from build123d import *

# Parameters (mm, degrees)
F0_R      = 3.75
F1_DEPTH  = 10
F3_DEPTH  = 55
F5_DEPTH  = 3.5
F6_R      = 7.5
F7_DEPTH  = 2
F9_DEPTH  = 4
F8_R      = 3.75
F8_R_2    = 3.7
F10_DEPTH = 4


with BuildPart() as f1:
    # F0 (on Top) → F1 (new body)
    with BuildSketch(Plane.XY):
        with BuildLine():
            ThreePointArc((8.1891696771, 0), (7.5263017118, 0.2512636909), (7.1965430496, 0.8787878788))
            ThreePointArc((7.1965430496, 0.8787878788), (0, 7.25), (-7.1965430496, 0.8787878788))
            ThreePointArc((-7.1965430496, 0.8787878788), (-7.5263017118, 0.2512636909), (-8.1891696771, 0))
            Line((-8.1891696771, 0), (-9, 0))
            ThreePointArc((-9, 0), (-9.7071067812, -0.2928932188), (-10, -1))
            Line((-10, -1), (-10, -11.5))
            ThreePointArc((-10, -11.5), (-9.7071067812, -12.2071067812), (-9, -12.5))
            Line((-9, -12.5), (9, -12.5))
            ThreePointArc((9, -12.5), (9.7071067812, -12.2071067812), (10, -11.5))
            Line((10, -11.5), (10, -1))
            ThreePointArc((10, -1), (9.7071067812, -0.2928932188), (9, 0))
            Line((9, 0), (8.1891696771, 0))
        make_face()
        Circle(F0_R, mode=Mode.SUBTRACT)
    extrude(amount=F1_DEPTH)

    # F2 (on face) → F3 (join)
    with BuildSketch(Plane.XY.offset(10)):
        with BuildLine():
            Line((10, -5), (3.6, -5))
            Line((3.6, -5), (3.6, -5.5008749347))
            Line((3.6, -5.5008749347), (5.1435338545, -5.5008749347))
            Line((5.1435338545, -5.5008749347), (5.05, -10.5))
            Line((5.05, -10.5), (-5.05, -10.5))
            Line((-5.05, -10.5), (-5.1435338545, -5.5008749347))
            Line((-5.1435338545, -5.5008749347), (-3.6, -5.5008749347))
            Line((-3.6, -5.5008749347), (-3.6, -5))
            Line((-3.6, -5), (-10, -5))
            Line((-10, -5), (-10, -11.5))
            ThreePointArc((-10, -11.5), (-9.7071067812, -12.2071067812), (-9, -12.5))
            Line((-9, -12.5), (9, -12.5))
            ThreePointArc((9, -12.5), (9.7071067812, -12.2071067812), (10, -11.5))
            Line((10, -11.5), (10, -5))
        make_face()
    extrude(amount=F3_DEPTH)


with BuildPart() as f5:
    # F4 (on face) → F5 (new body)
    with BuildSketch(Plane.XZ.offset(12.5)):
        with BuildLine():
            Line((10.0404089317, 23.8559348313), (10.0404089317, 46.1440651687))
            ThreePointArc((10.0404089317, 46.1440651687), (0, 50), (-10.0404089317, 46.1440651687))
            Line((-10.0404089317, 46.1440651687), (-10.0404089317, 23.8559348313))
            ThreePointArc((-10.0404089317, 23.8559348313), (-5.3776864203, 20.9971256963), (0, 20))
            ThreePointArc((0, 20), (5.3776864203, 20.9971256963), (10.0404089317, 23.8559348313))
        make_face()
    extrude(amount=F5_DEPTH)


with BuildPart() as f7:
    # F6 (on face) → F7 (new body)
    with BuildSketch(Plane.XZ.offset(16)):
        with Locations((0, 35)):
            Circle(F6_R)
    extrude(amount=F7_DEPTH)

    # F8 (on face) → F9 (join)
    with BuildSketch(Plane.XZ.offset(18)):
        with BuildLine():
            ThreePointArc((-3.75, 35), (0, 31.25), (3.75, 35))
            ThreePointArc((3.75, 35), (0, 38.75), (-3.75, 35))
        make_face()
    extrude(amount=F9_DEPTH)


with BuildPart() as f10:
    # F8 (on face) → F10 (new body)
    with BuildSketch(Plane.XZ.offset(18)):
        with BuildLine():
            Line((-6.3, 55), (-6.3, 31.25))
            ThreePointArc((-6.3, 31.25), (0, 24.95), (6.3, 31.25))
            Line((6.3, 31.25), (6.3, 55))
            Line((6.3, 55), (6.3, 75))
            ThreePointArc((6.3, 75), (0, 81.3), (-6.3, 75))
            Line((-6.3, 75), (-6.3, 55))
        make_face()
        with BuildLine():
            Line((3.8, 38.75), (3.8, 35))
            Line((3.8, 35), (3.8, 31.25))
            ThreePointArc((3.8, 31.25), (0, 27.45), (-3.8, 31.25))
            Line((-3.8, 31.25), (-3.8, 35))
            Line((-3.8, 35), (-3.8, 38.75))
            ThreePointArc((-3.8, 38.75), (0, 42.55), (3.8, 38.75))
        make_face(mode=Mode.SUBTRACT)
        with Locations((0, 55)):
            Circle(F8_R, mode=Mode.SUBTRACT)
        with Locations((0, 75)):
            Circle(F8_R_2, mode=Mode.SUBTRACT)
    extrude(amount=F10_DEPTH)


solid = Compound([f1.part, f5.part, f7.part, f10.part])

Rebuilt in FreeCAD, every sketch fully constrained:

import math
import FreeCAD as App
import Part
import Sketcher
from FreeCAD import Vector
Q = App.Units.Quantity

doc = App.newDocument("Part")
body = doc.addObject("PartDesign::Body", "Body")

# Sketch on XY plane
sketch1 = body.newObject("Sketcher::SketchObject", "Sketch")
sketch1.AttachmentSupport = (doc.getObject("XY_Plane"), [""])
sketch1.MapMode = "FlatFace"
sketch1.addGeometry([
    Part.ArcOfCircle(Part.Circle(Vector(8.2, 1, 0), Vector(0, 0, 1), 1), math.radians(-173), math.radians(-90)),  # 0
    Part.ArcOfCircle(Part.Circle(Vector(0, 0, 0), Vector(0, 0, 1), 7.2), math.radians(7), math.radians(173)),  # 1
    Part.ArcOfCircle(Part.Circle(Vector(-8.2, 1, 0), Vector(0, 0, 1), 1), math.radians(-90), math.radians(-7)),  # 2
    Part.LineSegment(Vector(-8.2, 0, 0), Vector(-9, 0, 0)),  # 3
    Part.ArcOfCircle(Part.Circle(Vector(-9, -1, 0), Vector(0, 0, 1), 1), math.radians(90), math.radians(180)),  # 4
    Part.LineSegment(Vector(-10, -1, 0), Vector(-10, -11.5, 0)),  # 5
    Part.ArcOfCircle(Part.Circle(Vector(-9, -11.5, 0), Vector(0, 0, 1), 1), math.radians(180), math.radians(270)),  # 6
    Part.LineSegment(Vector(-9, -12.5, 0), Vector(9, -12.5, 0)),  # 7
    Part.ArcOfCircle(Part.Circle(Vector(9, -11.5, 0), Vector(0, 0, 1), 1), math.radians(-90), math.radians(0)),  # 8
    Part.LineSegment(Vector(10, -11.5, 0), Vector(10, -1, 0)),  # 9
    Part.ArcOfCircle(Part.Circle(Vector(9, -1, 0), Vector(0, 0, 1), 1), math.radians(0), math.radians(90)),  # 10
    Part.LineSegment(Vector(9, 0, 0), Vector(8.2, 0, 0)),  # 11
    Part.Circle(Vector(0, 0, 0), Vector(0, 0, 1), 3.8),  # 12
], False)
sketch1.addConstraint([
    Sketcher.Constraint("Tangent", 0, 1, 1, 1),
    Sketcher.Constraint("Tangent", 1, 2, 2, 2),
    Sketcher.Constraint("Tangent", 2, 1, 3, 1),
    Sketcher.Constraint("Tangent", 3, 2, 4, 1),
    Sketcher.Constraint("Tangent", 4, 2, 5, 1),
    Sketcher.Constraint("Tangent", 5, 2, 6, 1),
    Sketcher.Constraint("Tangent", 6, 2, 7, 1),
    Sketcher.Constraint("Tangent", 7, 2, 8, 1),
    Sketcher.Constraint("Tangent", 8, 2, 9, 1),
    Sketcher.Constraint("Tangent", 9, 2, 10, 1),
    Sketcher.Constraint("Tangent", 10, 2, 11, 1),
    Sketcher.Constraint("Tangent", 11, 2, 0, 2),
    Sketcher.Constraint("Horizontal", 3),
    Sketcher.Constraint("Vertical", 5),
    Sketcher.Constraint("Horizontal", 7),
    Sketcher.Constraint("Vertical", 9),
    Sketcher.Constraint("Horizontal", 11),
    Sketcher.Constraint("Coincident", 1, 3, -1, 1),
    Sketcher.Constraint("Coincident", 12, 3, -1, 1),
    Sketcher.Constraint("Equal", 0, 2),
    Sketcher.Constraint("Equal", 2, 4),
    Sketcher.Constraint("Equal", 4, 6),
    Sketcher.Constraint("Equal", 6, 8),
    Sketcher.Constraint("Equal", 8, 10),
    Sketcher.Constraint("Symmetric", 3, 2, 10, 2, -1, 1),
    Sketcher.Constraint("PointOnObject", 2, 1, -1),
    Sketcher.Constraint("Radius", 0, Q("1 mm")),
    Sketcher.Constraint("Diameter", 12, Q("7.5 mm")),
    Sketcher.Constraint("DistanceX", 7, 1, 7, 2, Q("18 mm")),
    Sketcher.Constraint("Radius", 1, Q("7.25 mm")),
    Sketcher.Constraint("DistanceY", 5, 2, 5, 1, Q("10.5 mm")),
])
pad1 = body.newObject("PartDesign::Pad", "Pad")
pad1.Profile = sketch1
pad1.Length = 10

# Sketch on XY plane
sketch2 = body.newObject("Sketcher::SketchObject", "Sketch001")
sketch2.AttachmentSupport = (doc.getObject("XY_Plane"), [""])
sketch2.MapMode = "FlatFace"
sketch2.AttachmentOffset = App.Placement(Vector(0, 0, 10), App.Rotation())
sketch2.addGeometry([
    Part.LineSegment(Vector(10, -5, 0), Vector(3.6, -5, 0)),  # 0
    Part.LineSegment(Vector(3.6, -5, 0), Vector(3.6, -5.5, 0)),  # 1
    Part.LineSegment(Vector(3.6, -5.5, 0), Vector(5.1, -5.5, 0)),  # 2
    Part.LineSegment(Vector(5.1, -5.5, 0), Vector(5, -10.5, 0)),  # 3
    Part.LineSegment(Vector(5, -10.5, 0), Vector(-5, -10.5, 0)),  # 4
    Part.LineSegment(Vector(-5, -10.5, 0), Vector(-5.1, -5.5, 0)),  # 5
    Part.LineSegment(Vector(-5.1, -5.5, 0), Vector(-3.6, -5.5, 0)),  # 6
    Part.LineSegment(Vector(-3.6, -5.5, 0), Vector(-3.6, -5, 0)),  # 7
    Part.LineSegment(Vector(-3.6, -5, 0), Vector(-10, -5, 0)),  # 8
    Part.LineSegment(Vector(-10, -5, 0), Vector(-10, -11.5, 0)),  # 9
    Part.ArcOfCircle(Part.Circle(Vector(-9, -11.5, 0), Vector(0, 0, 1), 1), math.radians(180), math.radians(270)),  # 10
    Part.LineSegment(Vector(-9, -12.5, 0), Vector(9, -12.5, 0)),  # 11
    Part.ArcOfCircle(Part.Circle(Vector(9, -11.5, 0), Vector(0, 0, 1), 1), math.radians(-90), math.radians(0)),  # 12
    Part.LineSegment(Vector(10, -11.5, 0), Vector(10, -5, 0)),  # 13
], False)
sketch2.addConstraint([
    Sketcher.Constraint("Coincident", 0, 2, 1, 1),
    Sketcher.Constraint("Coincident", 1, 2, 2, 1),
    Sketcher.Constraint("Coincident", 2, 2, 3, 1),
    Sketcher.Constraint("Coincident", 3, 2, 4, 1),
    Sketcher.Constraint("Coincident", 4, 2, 5, 1),
    Sketcher.Constraint("Coincident", 5, 2, 6, 1),
    Sketcher.Constraint("Coincident", 6, 2, 7, 1),
    Sketcher.Constraint("Coincident", 7, 2, 8, 1),
    Sketcher.Constraint("Coincident", 8, 2, 9, 1),
    Sketcher.Constraint("Tangent", 9, 2, 10, 1),
    Sketcher.Constraint("Tangent", 10, 2, 11, 1),
    Sketcher.Constraint("Tangent", 11, 2, 12, 1),
    Sketcher.Constraint("Tangent", 12, 2, 13, 1),
    Sketcher.Constraint("Coincident", 13, 2, 0, 1),
    Sketcher.Constraint("Horizontal", 0),
    Sketcher.Constraint("Vertical", 1),
    Sketcher.Constraint("Horizontal", 2),
    Sketcher.Constraint("Horizontal", 4),
    Sketcher.Constraint("Horizontal", 6),
    Sketcher.Constraint("Vertical", 7),
    Sketcher.Constraint("Horizontal", 8),
    Sketcher.Constraint("Vertical", 9),
    Sketcher.Constraint("Horizontal", 11),
    Sketcher.Constraint("Vertical", 13),
    Sketcher.Constraint("Equal", 10, 12),
    Sketcher.Constraint("Symmetric", 2, 2, 5, 2, -2),
    Sketcher.Constraint("Symmetric", 0, 2, 7, 2, -2),
    Sketcher.Constraint("Equal", 0, 8),
    Sketcher.Constraint("Equal", 3, 5),
    Sketcher.Constraint("Radius", 10, Q("1 mm")),
    Sketcher.Constraint("DistanceX", 11, 1, 11, 2, Q("18 mm")),
    Sketcher.Constraint("Distance", 3, Q("5 mm")),
    Sketcher.Constraint("DistanceX", 0, 2, 0, 1, Q("6.4 mm")),
    Sketcher.Constraint("DistanceX", 4, 2, 4, 1, Q("10.1 mm")),
    Sketcher.Constraint("DistanceY", 9, 2, 9, 1, Q("6.5 mm")),
    Sketcher.Constraint("DistanceY", 0, 2, -1, 1, Q("5 mm")),
    Sketcher.Constraint("DistanceY", 12, 3, 3, 2, Q("1 mm")),
    Sketcher.Constraint("DistanceX", 2, 1, 2, 2, Q("1.543534 mm")),
])
pad2 = body.newObject("PartDesign::Pad", "Pad001")
pad2.Profile = sketch2
pad2.Length = 55
body2 = doc.addObject("PartDesign::Body", "Body001")

# Sketch on XZ plane
sketch3 = body2.newObject("Sketcher::SketchObject", "Sketch002")
sketch3.AttachmentSupport = (doc.getObject("XZ_Plane001"), [""])
sketch3.MapMode = "FlatFace"
sketch3.AttachmentOffset = App.Placement(Vector(0, 0, 12.5), App.Rotation())
sketch3.addGeometry([
    Part.LineSegment(Vector(10, 24, 0), Vector(10, 46, 0)),  # 0
    Part.ArcOfCircle(Part.Circle(Vector(0, 35, 0), Vector(0, 0, 1), 15), math.radians(48), math.radians(132)),  # 1
    Part.LineSegment(Vector(-10, 46, 0), Vector(-10, 24, 0)),  # 2
    Part.ArcOfCircle(Part.Circle(Vector(0, 35, 0), Vector(0, 0, 1), 15), math.radians(-132), math.radians(-90)),  # 3
    Part.ArcOfCircle(Part.Circle(Vector(0, 35, 0), Vector(0, 0, 1), 15), math.radians(-90), math.radians(-48)),  # 4
], False)
sketch3.addConstraint([
    Sketcher.Constraint("Coincident", 0, 2, 1, 1),
    Sketcher.Constraint("Coincident", 1, 2, 2, 1),
    Sketcher.Constraint("Coincident", 2, 2, 3, 1),
    Sketcher.Constraint("Tangent", 3, 2, 4, 1),
    Sketcher.Constraint("Coincident", 4, 2, 0, 1),
    Sketcher.Constraint("Vertical", 0),
    Sketcher.Constraint("Vertical", 2),
    Sketcher.Constraint("Coincident", 3, 3, 1, 3),
    Sketcher.Constraint("Equal", 1, 3),
    Sketcher.Constraint("Equal", 3, 4),
    Sketcher.Constraint("Symmetric", 0, 2, 1, 2, -2),
    Sketcher.Constraint("PointOnObject", 3, 2, -2),
    Sketcher.Constraint("Radius", 1, Q("15 mm")),
    Sketcher.Constraint("DistanceY", -1, 1, 1, 3, Q("35 mm")),
    Sketcher.Constraint("DistanceY", 0, 1, 0, 2, Q("22.28813 mm")),
])
pad3 = body2.newObject("PartDesign::Pad", "Pad002")
pad3.Profile = sketch3
pad3.Length = 3.5
body3 = doc.addObject("PartDesign::Body", "Body002")

# Sketch on XZ plane
sketch4 = body3.newObject("Sketcher::SketchObject", "Sketch003")
sketch4.AttachmentSupport = (doc.getObject("XZ_Plane002"), [""])
sketch4.MapMode = "FlatFace"
sketch4.AttachmentOffset = App.Placement(Vector(0, 0, 16), App.Rotation())
sketch4.addGeometry(Part.Circle(Vector(0, 35, 0), Vector(0, 0, 1), 8), False)
sketch4.addConstraint([
    Sketcher.Constraint("PointOnObject", 0, 3, -2),
    Sketcher.Constraint("Diameter", 0, Q("15 mm")),
    Sketcher.Constraint("DistanceY", -1, 1, 0, 3, Q("35 mm")),
])
pad4 = body3.newObject("PartDesign::Pad", "Pad003")
pad4.Profile = sketch4
pad4.Length = 2

# Sketch on XZ plane
sketch5 = body3.newObject("Sketcher::SketchObject", "Sketch004")
sketch5.AttachmentSupport = (doc.getObject("XZ_Plane002"), [""])
sketch5.MapMode = "FlatFace"
sketch5.AttachmentOffset = App.Placement(Vector(0, 0, 18), App.Rotation())
sketch5.addGeometry(Part.Circle(Vector(0, 35, 0), Vector(0, 0, 1), 3.8), False)
sketch5.addConstraint([
    Sketcher.Constraint("PointOnObject", 0, 3, -2),
    Sketcher.Constraint("Diameter", 0, Q("7.5 mm")),
    Sketcher.Constraint("DistanceY", -1, 1, 0, 3, Q("35 mm")),
])
pad5 = body3.newObject("PartDesign::Pad", "Pad004")
pad5.Profile = sketch5
pad5.Length = 4
body4 = doc.addObject("PartDesign::Body", "Body003")

# Sketch on XZ plane
sketch6 = body4.newObject("Sketcher::SketchObject", "Sketch005")
sketch6.AttachmentSupport = (doc.getObject("XZ_Plane003"), [""])
sketch6.MapMode = "FlatFace"
sketch6.AttachmentOffset = App.Placement(Vector(0, 0, 18), App.Rotation())
sketch6.addGeometry([
    Part.ArcOfCircle(Part.Circle(Vector(0, 31.2, 0), Vector(0, 0, 1), 6.3), math.radians(180), math.radians(360)),  # 0
    Part.LineSegment(Vector(6.3, 31.2, 0), Vector(6.3, 75, 0)),  # 1
    Part.ArcOfCircle(Part.Circle(Vector(0, 75, 0), Vector(0, 0, 1), 6.3), math.radians(0), math.radians(180)),  # 2
    Part.LineSegment(Vector(-6.3, 75, 0), Vector(-6.3, 31.2, 0)),  # 3
    Part.ArcOfCircle(Part.Circle(Vector(0, 38.8, 0), Vector(0, 0, 1), 3.8), math.radians(0), math.radians(180)),  # 4
    Part.LineSegment(Vector(3.8, 38.8, 0), Vector(3.8, 31.2, 0)),  # 5
    Part.ArcOfCircle(Part.Circle(Vector(0, 31.2, 0), Vector(0, 0, 1), 3.8), math.radians(180), math.radians(360)),  # 6
    Part.LineSegment(Vector(-3.8, 31.2, 0), Vector(-3.8, 38.8, 0)),  # 7
    Part.Circle(Vector(0, 55, 0), Vector(0, 0, 1), 3.8),  # 8
    Part.Circle(Vector(0, 75, 0), Vector(0, 0, 1), 3.7),  # 9
], False)
sketch6.addConstraint([
    Sketcher.Constraint("Tangent", 0, 2, 1, 1),
    Sketcher.Constraint("Tangent", 1, 2, 2, 1),
    Sketcher.Constraint("Tangent", 2, 2, 3, 1),
    Sketcher.Constraint("Tangent", 3, 2, 0, 1),
    Sketcher.Constraint("Tangent", 4, 1, 5, 1),
    Sketcher.Constraint("Tangent", 5, 2, 6, 2),
    Sketcher.Constraint("Tangent", 6, 1, 7, 1),
    Sketcher.Constraint("Tangent", 7, 2, 4, 2),
    Sketcher.Constraint("Vertical", 1),
    Sketcher.Constraint("Vertical", 3),
    Sketcher.Constraint("Vertical", 5),
    Sketcher.Constraint("Vertical", 7),
    Sketcher.Constraint("Coincident", 6, 3, 0, 3),
    Sketcher.Constraint("Coincident", 9, 3, 2, 3),
    Sketcher.Constraint("PointOnObject", 0, 3, -2),
    Sketcher.Constraint("PointOnObject", 8, 3, -2),
    Sketcher.Constraint("Diameter", 8, Q("7.5 mm")),
    Sketcher.Constraint("Diameter", 9, Q("7.4 mm")),
    Sketcher.Constraint("Radius", 0, Q("6.3 mm")),
    Sketcher.Constraint("Radius", 4, Q("3.8 mm")),
    Sketcher.Constraint("DistanceY", 5, 2, 5, 1, Q("7.5 mm")),
    Sketcher.Constraint("DistanceY", -1, 1, 2, 3, Q("75 mm")),
    Sketcher.Constraint("DistanceY", -1, 1, 8, 3, Q("55 mm")),
    Sketcher.Constraint("DistanceY", 1, 1, 1, 2, Q("43.75 mm")),
])
pad6 = body4.newObject("PartDesign::Pad", "Pad005")
pad6.Profile = sketch6
pad6.Length = 4

doc.recompute()
